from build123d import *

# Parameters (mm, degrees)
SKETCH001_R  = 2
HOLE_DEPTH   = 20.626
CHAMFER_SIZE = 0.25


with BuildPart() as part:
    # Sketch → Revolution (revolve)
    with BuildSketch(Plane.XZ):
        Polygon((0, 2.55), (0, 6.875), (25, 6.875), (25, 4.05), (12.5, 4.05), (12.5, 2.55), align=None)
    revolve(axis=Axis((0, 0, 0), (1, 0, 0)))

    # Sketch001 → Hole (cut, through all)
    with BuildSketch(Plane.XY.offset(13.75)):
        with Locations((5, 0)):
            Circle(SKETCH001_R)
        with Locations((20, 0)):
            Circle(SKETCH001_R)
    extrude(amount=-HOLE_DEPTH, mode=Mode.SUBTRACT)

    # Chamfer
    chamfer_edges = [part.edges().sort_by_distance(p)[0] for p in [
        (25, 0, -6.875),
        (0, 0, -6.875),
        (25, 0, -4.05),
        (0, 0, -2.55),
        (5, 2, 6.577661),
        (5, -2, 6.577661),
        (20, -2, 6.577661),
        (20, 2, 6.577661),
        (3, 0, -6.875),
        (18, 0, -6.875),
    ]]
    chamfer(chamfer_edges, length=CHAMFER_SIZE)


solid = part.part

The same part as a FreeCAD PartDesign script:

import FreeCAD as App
import Part
import Sketcher

V = App.Vector
Q = App.Units.Quantity


def edges_at(feature, points):
    """Names of the edges that pass closest to the given points."""
    edges = feature.Shape.Edges
    near = lambda p: min(range(len(edges)), key=lambda i: edges[i].distToShape(Part.Vertex(*p))[0])
    return sorted({f"Edge{near(p) + 1}" for p in points})

doc = App.newDocument("Part")
body = doc.addObject("PartDesign::Body", "Body")

# Sketch on XZ plane
sketch1 = body.newObject("Sketcher::SketchObject", "Sketch")
sketch1.AttachmentSupport = (doc.getObject("XZ_Plane"), [""])
sketch1.MapMode = "FlatFace"
sketch1.addGeometry([
    Part.LineSegment(V(0, 6.9, 0), V(0, 2.5, 0)),  # 0
    Part.LineSegment(V(0, 2.5, 0), V(12.5, 2.5, 0)),  # 1
    Part.LineSegment(V(12.5, 2.5, 0), V(12.5, 4, 0)),  # 2
    Part.LineSegment(V(12.5, 4, 0), V(25, 4, 0)),  # 3
    Part.LineSegment(V(25, 4, 0), V(25, 6.9, 0)),  # 4
    Part.LineSegment(V(25, 6.9, 0), V(0, 6.9, 0)),  # 5
], False)
sketch1.addConstraint([
    Sketcher.Constraint("Coincident", 0, 2, 1, 1),
    Sketcher.Constraint("Coincident", 1, 2, 2, 1),
    Sketcher.Constraint("Coincident", 2, 2, 3, 1),
    Sketcher.Constraint("Coincident", 3, 2, 4, 1),
    Sketcher.Constraint("Coincident", 4, 2, 5, 1),
    Sketcher.Constraint("Coincident", 5, 2, 0, 1),
    Sketcher.Constraint("Vertical", 0),
    Sketcher.Constraint("Horizontal", 1),
    Sketcher.Constraint("Vertical", 2),
    Sketcher.Constraint("Horizontal", 3),
    Sketcher.Constraint("Vertical", 4),
    Sketcher.Constraint("Horizontal", 5),
    Sketcher.Constraint("PointOnObject", 0, 2, -2),
    Sketcher.Constraint("Equal", 1, 3),
    Sketcher.Constraint("DistanceX", 5, 2, 5, 1, Q("25 mm")),
    Sketcher.Constraint("DistanceY", 2, 1, 2, 2, Q("1.5 mm")),
    Sketcher.Constraint("DistanceY", 0, 2, 0, 1, Q("4.325 mm")),
    Sketcher.Constraint("DistanceY", -1, 1, 0, 2, Q("2.55 mm")),
])
revolution = body.newObject("PartDesign::Revolution", "Revolution")
revolution.Profile = sketch1
revolution.ReferenceAxis = (sketch1, ["H_Axis"])
revolution.Angle = 360

# Sketch on XY plane
sketch2 = body.newObject("Sketcher::SketchObject", "Sketch001")
sketch2.AttachmentSupport = (doc.getObject("XY_Plane"), [""])
sketch2.MapMode = "FlatFace"
sketch2.AttachmentOffset = App.Placement(V(0, 0, 13.75), App.Rotation())
sketch2.addGeometry([
    Part.Circle(V(5, 0, 0), V(0, 0, 1), 2),
    Part.Circle(V(20, 0, 0), V(0, 0, 1), 2),
], False)
sketch2.addConstraint([
    Sketcher.Constraint("Equal", 0, 1),
    Sketcher.Constraint("PointOnObject", 0, 3, -1),
    Sketcher.Constraint("PointOnObject", 1, 3, -1),
    Sketcher.Constraint("Diameter", 0, Q("4 mm")),
    Sketcher.Constraint("DistanceX", -1, 1, 0, 3, Q("5 mm")),
    Sketcher.Constraint("DistanceX", -1, 1, 1, 3, Q("20 mm")),
])
pocket1 = body.newObject("PartDesign::Pocket", "Pocket")
pocket1.Profile = sketch2
pocket1.Type = "ThroughAll"
doc.recompute()

chamfer = body.newObject("PartDesign::Chamfer", "Chamfer")
chamfer.Base = (pocket1, edges_at(pocket1, [
    (25, 0, -6.875),
    (0, 0, -6.875),
    (25, 0, -4.05),
    (0, 0, -2.55),
    (5, 2, 6.578),
    (5, -2, 6.578),
    (20, -2, 6.578),
    (20, 2, 6.578),
    (3, 0, -6.875),
    (18, 0, -6.875),
]))
chamfer.Size = 0.25

doc.recompute()
